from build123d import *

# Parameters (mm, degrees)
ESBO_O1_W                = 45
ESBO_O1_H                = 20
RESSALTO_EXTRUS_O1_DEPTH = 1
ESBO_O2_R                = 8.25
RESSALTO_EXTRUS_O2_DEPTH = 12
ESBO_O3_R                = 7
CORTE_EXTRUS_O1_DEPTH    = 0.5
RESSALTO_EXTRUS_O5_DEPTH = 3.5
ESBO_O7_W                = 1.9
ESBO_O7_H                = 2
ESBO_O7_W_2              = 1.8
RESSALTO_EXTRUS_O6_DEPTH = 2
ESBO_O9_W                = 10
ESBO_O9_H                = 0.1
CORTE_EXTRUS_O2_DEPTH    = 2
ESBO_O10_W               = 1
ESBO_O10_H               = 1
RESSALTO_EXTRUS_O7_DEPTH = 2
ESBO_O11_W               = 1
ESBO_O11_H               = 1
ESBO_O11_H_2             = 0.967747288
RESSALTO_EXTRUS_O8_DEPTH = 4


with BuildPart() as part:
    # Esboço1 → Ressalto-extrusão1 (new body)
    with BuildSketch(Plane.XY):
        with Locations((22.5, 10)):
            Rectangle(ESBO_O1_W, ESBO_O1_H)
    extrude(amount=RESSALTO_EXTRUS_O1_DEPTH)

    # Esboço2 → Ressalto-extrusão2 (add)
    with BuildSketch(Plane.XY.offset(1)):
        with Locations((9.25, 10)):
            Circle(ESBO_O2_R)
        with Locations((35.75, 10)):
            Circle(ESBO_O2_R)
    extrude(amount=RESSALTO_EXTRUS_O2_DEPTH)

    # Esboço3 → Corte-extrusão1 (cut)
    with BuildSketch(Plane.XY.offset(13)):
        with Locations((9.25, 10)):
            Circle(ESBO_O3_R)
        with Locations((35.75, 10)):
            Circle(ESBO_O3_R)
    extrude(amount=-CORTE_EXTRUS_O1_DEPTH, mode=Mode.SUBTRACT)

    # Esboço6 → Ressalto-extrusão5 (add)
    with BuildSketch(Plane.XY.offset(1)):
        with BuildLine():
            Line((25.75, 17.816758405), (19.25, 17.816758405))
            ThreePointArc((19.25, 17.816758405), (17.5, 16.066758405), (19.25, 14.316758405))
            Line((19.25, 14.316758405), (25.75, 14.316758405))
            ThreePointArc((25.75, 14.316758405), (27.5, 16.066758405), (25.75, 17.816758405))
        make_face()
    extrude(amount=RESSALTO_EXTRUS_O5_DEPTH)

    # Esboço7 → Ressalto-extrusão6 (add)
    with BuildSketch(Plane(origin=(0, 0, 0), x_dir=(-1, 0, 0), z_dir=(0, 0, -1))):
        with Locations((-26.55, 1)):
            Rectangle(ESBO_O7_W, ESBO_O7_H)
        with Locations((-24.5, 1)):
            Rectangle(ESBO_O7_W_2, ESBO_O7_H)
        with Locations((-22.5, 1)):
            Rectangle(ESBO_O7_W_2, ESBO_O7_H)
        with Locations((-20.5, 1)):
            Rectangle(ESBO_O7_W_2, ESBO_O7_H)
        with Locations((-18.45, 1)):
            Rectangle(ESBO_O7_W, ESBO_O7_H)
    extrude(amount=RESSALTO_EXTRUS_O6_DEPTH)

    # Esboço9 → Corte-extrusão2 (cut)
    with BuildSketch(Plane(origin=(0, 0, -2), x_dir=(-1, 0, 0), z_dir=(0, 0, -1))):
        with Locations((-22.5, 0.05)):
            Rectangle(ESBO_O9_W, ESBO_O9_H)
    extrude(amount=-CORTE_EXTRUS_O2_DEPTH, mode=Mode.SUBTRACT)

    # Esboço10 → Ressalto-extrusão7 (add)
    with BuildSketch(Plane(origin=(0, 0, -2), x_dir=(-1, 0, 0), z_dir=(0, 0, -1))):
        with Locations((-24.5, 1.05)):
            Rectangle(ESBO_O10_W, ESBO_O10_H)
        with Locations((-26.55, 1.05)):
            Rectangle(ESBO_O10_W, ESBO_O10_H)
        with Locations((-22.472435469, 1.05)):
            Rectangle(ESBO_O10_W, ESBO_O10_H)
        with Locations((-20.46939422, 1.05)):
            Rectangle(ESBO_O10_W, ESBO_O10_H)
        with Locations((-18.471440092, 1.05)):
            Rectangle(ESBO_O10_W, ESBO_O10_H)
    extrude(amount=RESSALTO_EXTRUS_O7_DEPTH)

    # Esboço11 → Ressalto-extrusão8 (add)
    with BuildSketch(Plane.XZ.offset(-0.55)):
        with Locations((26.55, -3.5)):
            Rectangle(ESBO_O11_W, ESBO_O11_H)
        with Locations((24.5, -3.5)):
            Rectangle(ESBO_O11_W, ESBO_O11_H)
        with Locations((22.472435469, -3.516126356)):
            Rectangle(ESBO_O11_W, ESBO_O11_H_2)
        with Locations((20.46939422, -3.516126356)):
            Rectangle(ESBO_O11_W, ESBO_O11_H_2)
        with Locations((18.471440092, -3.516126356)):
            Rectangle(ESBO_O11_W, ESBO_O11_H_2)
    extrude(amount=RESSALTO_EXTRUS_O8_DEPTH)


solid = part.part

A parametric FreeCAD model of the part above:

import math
import FreeCAD as App
import Part
import Sketcher
from FreeCAD import Vector
Q = App.Units.Quantity

doc = App.newDocument("Part")
params = doc.addObject("Spreadsheet::Sheet", "Params")
for row, (alias, value) in enumerate([
    ("sketch1_width", "45 mm"),
    ("sketch1_height", "20 mm"),
    ("pad1_length", "1 mm"),
    ("sketch2_diameter", "16.5 mm"),
    ("pad2_length", "12 mm"),
    ("sketch3_diameter", "14 mm"),
    ("pocket1_length", "0.5 mm"),
    ("sketch4_radius", "1.75 mm"),
    ("sketch4_width", "6.5 mm"),
    ("pad3_length", "3.5 mm"),
    ("sketch5_height", "2 mm"),
    ("sketch5_width", "1.9 mm"),
    ("sketch5_width2", "1.8 mm"),
    ("pad4_length", "2 mm"),
    ("sketch6_width", "10 mm"),
    ("sketch6_height", "0.1 mm"),
    ("pocket2_length", "2 mm"),
    ("sketch7_width", "1 mm"),
    ("pad5_length", "2 mm"),
    ("sketch8_width", "1 mm"),
    ("pad6_length", "4 mm"),
], start=1):
    params.set(f"A{row}", alias)
    params.set(f"B{row}", "=" + value)
    params.setAlias(f"B{row}", alias)

body = doc.addObject("PartDesign::Body", "Body")

# Sketch on XY plane
sketch1 = body.newObject("Sketcher::SketchObject", "Sketch")
sketch1.AttachmentSupport = (doc.getObject("XY_Plane"), [""])
sketch1.MapMode = "FlatFace"
sketch1.addGeometry(Part.LineSegment(Vector(0, 20, 0), Vector(0, 0, 0)), False)
sketch1.addGeometry(Part.LineSegment(Vector(0, 0, 0), Vector(45, 0, 0)), False)
sketch1.addGeometry(Part.LineSegment(Vector(45, 0, 0), Vector(45, 20, 0)), False)
sketch1.addGeometry(Part.LineSegment(Vector(45, 20, 0), Vector(0, 20, 0)), False)
sketch1.addConstraint(Sketcher.Constraint("Coincident", 0, 2, 1, 1))
sketch1.addConstraint(Sketcher.Constraint("Coincident", 1, 2, 2, 1))
sketch1.addConstraint(Sketcher.Constraint("Coincident", 2, 2, 3, 1))
sketch1.addConstraint(Sketcher.Constraint("Coincident", 3, 2, 0, 1))
sketch1.addConstraint(Sketcher.Constraint("Vertical", 0))
sketch1.addConstraint(Sketcher.Constraint("Horizontal", 1))
sketch1.addConstraint(Sketcher.Constraint("Vertical", 2))
sketch1.addConstraint(Sketcher.Constraint("Horizontal", 3))
sketch1.addConstraint(Sketcher.Constraint("Coincident", 0, 2, -1, 1))
sketch1.addConstraint(Sketcher.Constraint("DistanceX", 1, 1, 1, 2, Q("45 mm")))
sketch1.addConstraint(Sketcher.Constraint("DistanceY", 0, 2, 0, 1, Q("20 mm")))
sketch1.setExpression("Constraints[9]", "Params.sketch1_width")
sketch1.setExpression("Constraints[10]", "Params.sketch1_height")
pad1 = body.newObject("PartDesign::Pad", "Pad")
pad1.Profile = sketch1
pad1.setExpression("Length", "Params.pad1_length")

# Sketch on XY plane
sketch2 = body.newObject("Sketcher::SketchObject", "Sketch001")
sketch2.AttachmentSupport = (doc.getObject("XY_Plane"), [""])
sketch2.MapMode = "FlatFace"
sketch2.AttachmentOffset = App.Placement(Vector(0, 0, 1), App.Rotation())
sketch2.addGeometry(Part.Circle(Vector(9, 10, 0), Vector(0, 0, 1), 8), False)
sketch2.addGeometry(Part.Circle(Vector(36, 10, 0), Vector(0, 0, 1), 8), False)
sketch2.addConstraint(Sketcher.Constraint("Equal", 0, 1))
sketch2.addConstraint(Sketcher.Constraint("Horizontal", 0, 3, 1, 3))
sketch2.addConstraint(Sketcher.Constraint("Diameter", 0, Q("16.5 mm")))
sketch2.addConstraint(Sketcher.Constraint("DistanceY", -1, 1, 0, 3, Q("10 mm")))
sketch2.addConstraint(Sketcher.Constraint("DistanceX", 0, 3, 1, 3, Q("26.5 mm")))
sketch2.addConstraint(Sketcher.Constraint("DistanceX", -1, 1, 0, 3, Q("9.25 mm")))
sketch2.setExpression("Constraints[2]", "Params.sketch2_diameter")
pad2 = body.newObject("PartDesign::Pad", "Pad001")
pad2.Profile = sketch2
pad2.setExpression("Length", "Params.pad2_length")

# Sketch on XY plane
sketch3 = body.newObject("Sketcher::SketchObject", "Sketch002")
sketch3.AttachmentSupport = (doc.getObject("XY_Plane"), [""])
sketch3.MapMode = "FlatFace"
sketch3.AttachmentOffset = App.Placement(Vector(0, 0, 13), App.Rotation())
sketch3.addGeometry(Part.Circle(Vector(9, 10, 0), Vector(0, 0, 1), 7), False)
sketch3.addGeometry(Part.Circle(Vector(36, 10, 0), Vector(0, 0, 1), 7), False)
sketch3.addConstraint(Sketcher.Constraint("Equal", 0, 1))
sketch3.addConstraint(Sketcher.Constraint("Horizontal", 0, 3, 1, 3))
sketch3.addConstraint(Sketcher.Constraint("Diameter", 0, Q("14 mm")))
sketch3.addConstraint(Sketcher.Constraint("DistanceY", -1, 1, 0, 3, Q("10 mm")))
sketch3.addConstraint(Sketcher.Constraint("DistanceX", 0, 3, 1, 3, Q("26.5 mm")))
sketch3.addConstraint(Sketcher.Constraint("DistanceX", -1, 1, 0, 3, Q("9.25 mm")))
sketch3.setExpression("Constraints[2]", "Params.sketch3_diameter")
pocket1 = body.newObject("PartDesign::Pocket", "Pocket")
pocket1.Profile = sketch3
pocket1.setExpression("Length", "Params.pocket1_length")

# Sketch on XY plane
sketch4 = body.newObject("Sketcher::SketchObject", "Sketch003")
sketch4.AttachmentSupport = (doc.getObject("XY_Plane"), [""])
sketch4.MapMode = "FlatFace"
sketch4.AttachmentOffset = App.Placement(Vector(0, 0, 1), App.Rotation())
sketch4.addGeometry(Part.LineSegment(Vector(25.8, 17.8, 0), Vector(19.2, 17.8, 0)), False)
sketch4.addGeometry(Part.ArcOfCircle(Part.Circle(Vector(19.2, 16.1, 0), Vector(0, 0, 1), 1.8), math.radians(90), math.radians(270)), False)
sketch4.addGeometry(Part.LineSegment(Vector(19.2, 14.3, 0), Vector(25.8, 14.3, 0)), False)
sketch4.addGeometry(Part.ArcOfCircle(Part.Circle(Vector(25.8, 16.1, 0), Vector(0, 0, 1), 1.8), math.radians(-90), math.radians(90)), False)
sketch4.addConstraint(Sketcher.Constraint("Tangent", 0, 2, 1, 1))
sketch4.addConstraint(Sketcher.Constraint("Tangent", 1, 2, 2, 1))
sketch4.addConstraint(Sketcher.Constraint("Tangent", 2, 2, 3, 1))
sketch4.addConstraint(Sketcher.Constraint("Tangent", 3, 2, 0, 1))
sketch4.addConstraint(Sketcher.Constraint("Horizontal", 0))
sketch4.addConstraint(Sketcher.Constraint("Horizontal", 2))
sketch4.addConstraint(Sketcher.Constraint("Radius", 1, Q("1.75 mm")))
sketch4.addConstraint(Sketcher.Constraint("DistanceX", 0, 2, 0, 1, Q("6.5 mm")))
sketch4.addConstraint(Sketcher.Constraint("DistanceX", -1, 1, 1, 3, Q("19.25 mm")))
sketch4.addConstraint(Sketcher.Constraint("DistanceY", -1, 1, 1, 3, Q("16.066758 mm")))
sketch4.setExpression("Constraints[6]", "Params.sketch4_radius")
sketch4.setExpression("Constraints[7]", "Params.sketch4_width")
pad3 = body.newObject("PartDesign::Pad", "Pad002")
pad3.Profile = sketch4
pad3.setExpression("Length", "Params.pad3_length")

# Sketch on XY plane
sketch5 = body.newObject("Sketcher::SketchObject", "Sketch004")
sketch5.AttachmentSupport = (doc.getObject("XY_Plane"), [""])
sketch5.MapMode = "FlatFace"
sketch5.addGeometry(Part.LineSegment(Vector(27.5, 2, 0), Vector(27.5, 0, 0)), False)
sketch5.addGeometry(Part.LineSegment(Vector(27.5, 0, 0), Vector(25.6, 0, 0)), False)
sketch5.addGeometry(Part.LineSegment(Vector(25.6, 0, 0), Vector(25.6, 2, 0)), False)
sketch5.addGeometry(Part.LineSegment(Vector(25.6, 2, 0), Vector(27.5, 2, 0)), False)
sketch5.addGeometry(Part.LineSegment(Vector(25.4, 2, 0), Vector(25.4, 0, 0)), False)
sketch5.addGeometry(Part.LineSegment(Vector(25.4, 0, 0), Vector(23.6, 0, 0)), False)
sketch5.addGeometry(Part.LineSegment(Vector(23.6, 0, 0), Vector(23.6, 2, 0)), False)
sketch5.addGeometry(Part.LineSegment(Vector(23.6, 2, 0), Vector(25.4, 2, 0)), False)
sketch5.addGeometry(Part.LineSegment(Vector(23.4, 2, 0), Vector(23.4, 0, 0)), False)
sketch5.addGeometry(Part.LineSegment(Vector(23.4, 0, 0), Vector(21.6, 0, 0)), False)
sketch5.addGeometry(Part.LineSegment(Vector(21.6, 0, 0), Vector(21.6, 2, 0)), False)
sketch5.addGeometry(Part.LineSegment(Vector(21.6, 2, 0), Vector(23.4, 2, 0)), False)
sketch5.addGeometry(Part.LineSegment(Vector(21.4, 2, 0), Vector(21.4, 0, 0)), False)
sketch5.addGeometry(Part.LineSegment(Vector(21.4, 0, 0), Vector(19.6, 0, 0)), False)
sketch5.addGeometry(Part.LineSegment(Vector(19.6, 0, 0), Vector(19.6, 2, 0)), False)
sketch5.addGeometry(Part.LineSegment(Vector(19.6, 2, 0), Vector(21.4, 2, 0)), False)
sketch5.addGeometry(Part.LineSegment(Vector(19.4, 2, 0), Vector(19.4, 0, 0)), False)
sketch5.addGeometry(Part.LineSegment(Vector(19.4, 0, 0), Vector(17.5, 0, 0)), False)
sketch5.addGeometry(Part.LineSegment(Vector(17.5, 0, 0), Vector(17.5, 2, 0)), False)
sketch5.addGeometry(Part.LineSegment(Vector(17.5, 2, 0), Vector(19.4, 2, 0)), False)
sketch5.addConstraint(Sketcher.Constraint("Coincident", 0, 2, 1, 1))
sketch5.addConstraint(Sketcher.Constraint("Coincident", 1, 2, 2, 1))
sketch5.addConstraint(Sketcher.Constraint("Coincident", 2, 2, 3, 1))
sketch5.addConstraint(Sketcher.Constraint("Coincident", 3, 2, 0, 1))
sketch5.addConstraint(Sketcher.Constraint("Coincident", 4, 2, 5, 1))
sketch5.addConstraint(Sketcher.Constraint("Coincident", 5, 2, 6, 1))
sketch5.addConstraint(Sketcher.Constraint("Coincident", 6, 2, 7, 1))
sketch5.addConstraint(Sketcher.Constraint("Coincident", 7, 2, 4, 1))
sketch5.addConstraint(Sketcher.Constraint("Coincident", 8, 2, 9, 1))
sketch5.addConstraint(Sketcher.Constraint("Coincident", 9, 2, 10, 1))
sketch5.addConstraint(Sketcher.Constraint("Coincident", 10, 2, 11, 1))
sketch5.addConstraint(Sketcher.Constraint("Coincident", 11, 2, 8, 1))
sketch5.addConstraint(Sketcher.Constraint("Coincident", 12, 2, 13, 1))
sketch5.addConstraint(Sketcher.Constraint("Coincident", 13, 2, 14, 1))
sketch5.addConstraint(Sketcher.Constraint("Coincident", 14, 2, 15, 1))
sketch5.addConstraint(Sketcher.Constraint("Coincident", 15, 2, 12, 1))
sketch5.addConstraint(Sketcher.Constraint("Coincident", 16, 2, 17, 1))
sketch5.addConstraint(Sketcher.Constraint("Coincident", 17, 2, 18, 1))
sketch5.addConstraint(Sketcher.Constraint("Coincident", 18, 2, 19, 1))
sketch5.addConstraint(Sketcher.Constraint("Coincident", 19, 2, 16, 1))
sketch5.addConstraint(Sketcher.Constraint("Vertical", 0))
sketch5.addConstraint(Sketcher.Constraint("Horizontal", 1))
sketch5.addConstraint(Sketcher.Constraint("Vertical", 2))
sketch5.addConstraint(Sketcher.Constraint("Horizontal", 3))
sketch5.addConstraint(Sketcher.Constraint("Vertical", 4))
sketch5.addConstraint(Sketcher.Constraint("Horizontal", 5))
sketch5.addConstraint(Sketcher.Constraint("Vertical", 6))
sketch5.addConstraint(Sketcher.Constraint("Horizontal", 7))
sketch5.addConstraint(Sketcher.Constraint("Vertical", 8))
sketch5.addConstraint(Sketcher.Constraint("Horizontal", 9))
sketch5.addConstraint(Sketcher.Constraint("Vertical", 10))
sketch5.addConstraint(Sketcher.Constraint("Horizontal", 11))
sketch5.addConstraint(Sketcher.Constraint("Vertical", 12))
sketch5.addConstraint(Sketcher.Constraint("Horizontal", 13))
sketch5.addConstraint(Sketcher.Constraint("Vertical", 14))
sketch5.addConstraint(Sketcher.Constraint("Horizontal", 15))
sketch5.addConstraint(Sketcher.Constraint("Vertical", 16))
sketch5.addConstraint(Sketcher.Constraint("Horizontal", 17))
sketch5.addConstraint(Sketcher.Constraint("Vertical", 18))
sketch5.addConstraint(Sketcher.Constraint("Horizontal", 19))
sketch5.addConstraint(Sketcher.Constraint("PointOnObject", 0, 2, -1))
sketch5.addConstraint(Sketcher.Constraint("PointOnObject", 4, 2, -1))
sketch5.addConstraint(Sketcher.Constraint("PointOnObject", 8, 2, -1))
sketch5.addConstraint(Sketcher.Constraint("PointOnObject", 12, 2, -1))
sketch5.addConstraint(Sketcher.Constraint("PointOnObject", 16, 2, -1))
sketch5.addConstraint(Sketcher.Constraint("Horizontal", 3, 2, 6, 2))
sketch5.addConstraint(Sketcher.Constraint("Horizontal", 7, 2, 10, 2))
sketch5.addConstraint(Sketcher.Constraint("Horizontal", 11, 2, 14, 2))
sketch5.addConstraint(Sketcher.Constraint("Horizontal", 15, 2, 18, 2))
sketch5.addConstraint(Sketcher.Constraint("Equal", 7, 9))
sketch5.addConstraint(Sketcher.Constraint("Equal", 11, 13))
sketch5.addConstraint(Sketcher.Constraint("Equal", 3, 17))
sketch5.addConstraint(Sketcher.Constraint("DistanceY", 0, 2, 0, 1, Q("2 mm")))
sketch5.addConstraint(Sketcher.Constraint("DistanceX", 1, 2, 1, 1, Q("1.9 mm")))
sketch5.addConstraint(Sketcher.Constraint("DistanceX", 5, 2, 5, 1, Q("1.8 mm")))
sketch5.addConstraint(Sketcher.Constraint("DistanceX", 5, 2, 1, 2, Q("2 mm")))
sketch5.addConstraint(Sketcher.Constraint("DistanceX", 8, 2, 4, 2, Q("2 mm")))
sketch5.addConstraint(Sketcher.Constraint("DistanceX", 12, 2, 8, 2, Q("2 mm")))
sketch5.addConstraint(Sketcher.Constraint("DistanceX", 16, 2, 12, 2, Q("2 mm")))
sketch5.addConstraint(Sketcher.Constraint("DistanceX", -1, 1, 0, 2, Q("27.5 mm")))
sketch5.setExpression("Constraints[52]", "Params.sketch5_height")
sketch5.setExpression("Constraints[53]", "Params.sketch5_width")
sketch5.setExpression("Constraints[54]", "Params.sketch5_width2")
pad4 = body.newObject("PartDesign::Pad", "Pad003")
pad4.Profile = sketch5
pad4.setExpression("Length", "Params.pad4_length")
pad4.Reversed = True

# Sketch on XY plane
sketch6 = body.newObject("Sketcher::SketchObject", "Sketch005")
sketch6.AttachmentSupport = (doc.getObject("XY_Plane"), [""])
sketch6.MapMode = "FlatFace"
sketch6.AttachmentOffset = App.Placement(Vector(0, 0, -2), App.Rotation())
sketch6.addGeometry(Part.LineSegment(Vector(27.5, 0.1, 0), Vector(27.5, 0, 0)), False)
sketch6.addGeometry(Part.LineSegment(Vector(27.5, 0, 0), Vector(17.5, 0, 0)), False)
sketch6.addGeometry(Part.LineSegment(Vector(17.5, 0, 0), Vector(17.5, 0.1, 0)), False)
sketch6.addGeometry(Part.LineSegment(Vector(17.5, 0.1, 0), Vector(27.5, 0.1, 0)), False)
sketch6.addConstraint(Sketcher.Constraint("Coincident", 0, 2, 1, 1))
sketch6.addConstraint(Sketcher.Constraint("Coincident", 1, 2, 2, 1))
sketch6.addConstraint(Sketcher.Constraint("Coincident", 2, 2, 3, 1))
sketch6.addConstraint(Sketcher.Constraint("Coincident", 3, 2, 0, 1))
sketch6.addConstraint(Sketcher.Constraint("Vertical", 0))
sketch6.addConstraint(Sketcher.Constraint("Horizontal", 1))
sketch6.addConstraint(Sketcher.Constraint("Vertical", 2))
sketch6.addConstraint(Sketcher.Constraint("Horizontal", 3))
sketch6.addConstraint(Sketcher.Constraint("PointOnObject", 0, 2, -1))
sketch6.addConstraint(Sketcher.Constraint("DistanceX", 1, 2, 1, 1, Q("10 mm")))
sketch6.addConstraint(Sketcher.Constraint("DistanceY", 0, 2, 0, 1, Q("0.1 mm")))
sketch6.addConstraint(Sketcher.Constraint("DistanceX", -1, 1, 0, 2, Q("27.5 mm")))
sketch6.setExpression("Constraints[9]", "Params.sketch6_width")
sketch6.setExpression("Constraints[10]", "Params.sketch6_height")
pocket2 = body.newObject("PartDesign::Pocket", "Pocket001")
pocket2.Profile = sketch6
pocket2.setExpression("Length", "Params.pocket2_length")
pocket2.Reversed = True

# Sketch on XY plane
sketch7 = body.newObject("Sketcher::SketchObject", "Sketch006")
sketch7.AttachmentSupport = (doc.getObject("XY_Plane"), [""])
sketch7.MapMode = "FlatFace"
sketch7.AttachmentOffset = App.Placement(Vector(0, 0, -2), App.Rotation())
sketch7.addGeometry(Part.LineSegment(Vector(25, 1.6, 0), Vector(25, 0.6, 0)), False)
sketch7.addGeometry(Part.LineSegment(Vector(25, 0.6, 0), Vector(24, 0.6, 0)), False)
sketch7.addGeometry(Part.LineSegment(Vector(24, 0.6, 0), Vector(24, 1.6, 0)), False)
sketch7.addGeometry(Part.LineSegment(Vector(24, 1.6, 0), Vector(25, 1.6, 0)), False)
sketch7.addGeometry(Part.LineSegment(Vector(27.1, 1.6, 0), Vector(27.1, 0.6, 0)), False)
sketch7.addGeometry(Part.LineSegment(Vector(27.1, 0.6, 0), Vector(26.1, 0.6, 0)), False)
sketch7.addGeometry(Part.LineSegment(Vector(26.1, 0.6, 0), Vector(26.1, 1.6, 0)), False)
sketch7.addGeometry(Part.LineSegment(Vector(26.1, 1.6, 0), Vector(27.1, 1.6, 0)), False)
sketch7.addGeometry(Part.LineSegment(Vector(23, 1.6, 0), Vector(23, 0.6, 0)), False)
sketch7.addGeometry(Part.LineSegment(Vector(23, 0.6, 0), Vector(22, 0.6, 0)), False)
sketch7.addGeometry(Part.LineSegment(Vector(22, 0.6, 0), Vector(22, 1.6, 0)), False)
sketch7.addGeometry(Part.LineSegment(Vector(22, 1.6, 0), Vector(23, 1.6, 0)), False)
sketch7.addGeometry(Part.LineSegment(Vector(21, 1.6, 0), Vector(21, 0.6, 0)), False)
sketch7.addGeometry(Part.LineSegment(Vector(21, 0.6, 0), Vector(20, 0.6, 0)), False)
sketch7.addGeometry(Part.LineSegment(Vector(20, 0.6, 0), Vector(20, 1.6, 0)), False)
sketch7.addGeometry(Part.LineSegment(Vector(20, 1.6, 0), Vector(21, 1.6, 0)), False)
sketch7.addGeometry(Part.LineSegment(Vector(19, 1.6, 0), Vector(19, 0.6, 0)), False)
sketch7.addGeometry(Part.LineSegment(Vector(19, 0.6, 0), Vector(18, 0.6, 0)), False)
sketch7.addGeometry(Part.LineSegment(Vector(18, 0.6, 0), Vector(18, 1.6, 0)), False)
sketch7.addGeometry(Part.LineSegment(Vector(18, 1.6, 0), Vector(19, 1.6, 0)), False)
sketch7.addConstraint(Sketcher.Constraint("Coincident", 0, 2, 1, 1))
sketch7.addConstraint(Sketcher.Constraint("Coincident", 1, 2, 2, 1))
sketch7.addConstraint(Sketcher.Constraint("Coincident", 2, 2, 3, 1))
sketch7.addConstraint(Sketcher.Constraint("Coincident", 3, 2, 0, 1))
sketch7.addConstraint(Sketcher.Constraint("Coincident", 4, 2, 5, 1))
sketch7.addConstraint(Sketcher.Constraint("Coincident", 5, 2, 6, 1))
sketch7.addConstraint(Sketcher.Constraint("Coincident", 6, 2, 7, 1))
sketch7.addConstraint(Sketcher.Constraint("Coincident", 7, 2, 4, 1))
sketch7.addConstraint(Sketcher.Constraint("Coincident", 8, 2, 9, 1))
sketch7.addConstraint(Sketcher.Constraint("Coincident", 9, 2, 10, 1))
sketch7.addConstraint(Sketcher.Constraint("Coincident", 10, 2, 11, 1))
sketch7.addConstraint(Sketcher.Constraint("Coincident", 11, 2, 8, 1))
sketch7.addConstraint(Sketcher.Constraint("Coincident", 12, 2, 13, 1))
sketch7.addConstraint(Sketcher.Constraint("Coincident", 13, 2, 14, 1))
sketch7.addConstraint(Sketcher.Constraint("Coincident", 14, 2, 15, 1))
sketch7.addConstraint(Sketcher.Constraint("Coincident", 15, 2, 12, 1))
sketch7.addConstraint(Sketcher.Constraint("Coincident", 16, 2, 17, 1))
sketch7.addConstraint(Sketcher.Constraint("Coincident", 17, 2, 18, 1))
sketch7.addConstraint(Sketcher.Constraint("Coincident", 18, 2, 19, 1))
sketch7.addConstraint(Sketcher.Constraint("Coincident", 19, 2, 16, 1))
sketch7.addConstraint(Sketcher.Constraint("Vertical", 0))
sketch7.addConstraint(Sketcher.Constraint("Horizontal", 1))
sketch7.addConstraint(Sketcher.Constraint("Vertical", 2))
sketch7.addConstraint(Sketcher.Constraint("Horizontal", 3))
sketch7.addConstraint(Sketcher.Constraint("Vertical", 4))
sketch7.addConstraint(Sketcher.Constraint("Horizontal", 5))
sketch7.addConstraint(Sketcher.Constraint("Vertical", 6))
sketch7.addConstraint(Sketcher.Constraint("Horizontal", 7))
sketch7.addConstraint(Sketcher.Constraint("Vertical", 8))
sketch7.addConstraint(Sketcher.Constraint("Horizontal", 9))
sketch7.addConstraint(Sketcher.Constraint("Vertical", 10))
sketch7.addConstraint(Sketcher.Constraint("Horizontal", 11))
sketch7.addConstraint(Sketcher.Constraint("Vertical", 12))
sketch7.addConstraint(Sketcher.Constraint("Horizontal", 13))
sketch7.addConstraint(Sketcher.Constraint("Vertical", 14))
sketch7.addConstraint(Sketcher.Constraint("Horizontal", 15))
sketch7.addConstraint(Sketcher.Constraint("Vertical", 16))
sketch7.addConstraint(Sketcher.Constraint("Horizontal", 17))
sketch7.addConstraint(Sketcher.Constraint("Vertical", 18))
sketch7.addConstraint(Sketcher.Constraint("Horizontal", 19))
sketch7.addConstraint(Sketcher.Constraint("Horizontal", 1, 2, 4, 2))
sketch7.addConstraint(Sketcher.Constraint("Horizontal", 3, 2, 6, 2))
sketch7.addConstraint(Sketcher.Constraint("Horizontal", 5, 2, 8, 2))
sketch7.addConstraint(Sketcher.Constraint("Horizontal", 7, 2, 10, 2))
sketch7.addConstraint(Sketcher.Constraint("Horizontal", 9, 2, 12, 2))
sketch7.addConstraint(Sketcher.Constraint("Horizontal", 11, 2, 14, 2))
sketch7.addConstraint(Sketcher.Constraint("Horizontal", 13, 2, 16, 2))
sketch7.addConstraint(Sketcher.Constraint("Horizontal", 15, 2, 18, 2))
sketch7.addConstraint(Sketcher.Constraint("Equal", 3, 5))
sketch7.addConstraint(Sketcher.Constraint("Equal", 7, 9))
sketch7.addConstraint(Sketcher.Constraint("Equal", 11, 13))
sketch7.addConstraint(Sketcher.Constraint("Equal", 15, 17))
sketch7.addConstraint(Sketcher.Constraint("Equal", 19, 0))
sketch7.addConstraint(Sketcher.Constraint("DistanceX", 1, 2, 1, 1, Q("1 mm")))
sketch7.addConstraint(Sketcher.Constraint("DistanceX", -1, 1, 0, 2, Q("25 mm")))
sketch7.addConstraint(Sketcher.Constraint("DistanceY", -1, 1, 0, 2, Q("0.55 mm")))
sketch7.addConstraint(Sketcher.Constraint("DistanceX", -1, 1, 4, 2, Q("27.05 mm")))
sketch7.addConstraint(Sketcher.Constraint("DistanceX", -1, 1, 16, 2, Q("18.97144 mm")))
sketch7.addConstraint(Sketcher.Constraint("DistanceX", 12, 2, 9, 2, Q("1.003041 mm")))
sketch7.addConstraint(Sketcher.Constraint("DistanceX", -1, 1, 8, 2, Q("22.972435 mm")))
sketch7.setExpression("Constraints[53]", "Params.sketch7_width")
pad5 = body.newObject("PartDesign::Pad", "Pad004")
pad5.Profile = sketch7
pad5.setExpression("Length", "Params.pad5_length")
pad5.Reversed = True

# Sketch on XZ plane
sketch8 = body.newObject("Sketcher::SketchObject", "Sketch007")
sketch8.AttachmentSupport = (doc.getObject("XZ_Plane"), [""])
sketch8.MapMode = "FlatFace"
sketch8.AttachmentOffset = App.Placement(Vector(0, 0, -0.55), App.Rotation())
sketch8.addGeometry(Part.LineSegment(Vector(26.1, -3, 0), Vector(26.1, -4, 0)), False)
sketch8.addGeometry(Part.LineSegment(Vector(26.1, -4, 0), Vector(27.1, -4, 0)), False)
sketch8.addGeometry(Part.LineSegment(Vector(27.1, -4, 0), Vector(27.1, -3, 0)), False)
sketch8.addGeometry(Part.LineSegment(Vector(27.1, -3, 0), Vector(26.1, -3, 0)), False)
sketch8.addGeometry(Part.LineSegment(Vector(24, -3, 0), Vector(24, -4, 0)), False)
sketch8.addGeometry(Part.LineSegment(Vector(24, -4, 0), Vector(25, -4, 0)), False)
sketch8.addGeometry(Part.LineSegment(Vector(25, -4, 0), Vector(25, -3, 0)), False)
sketch8.addGeometry(Part.LineSegment(Vector(25, -3, 0), Vector(24, -3, 0)), False)
sketch8.addGeometry(Part.LineSegment(Vector(22, -3, 0), Vector(22, -4, 0)), False)
sketch8.addGeometry(Part.LineSegment(Vector(22, -4, 0), Vector(23, -4, 0)), False)
sketch8.addGeometry(Part.LineSegment(Vector(23, -4, 0), Vector(23, -3, 0)), False)
sketch8.addGeometry(Part.LineSegment(Vector(23, -3, 0), Vector(22, -3, 0)), False)
sketch8.addGeometry(Part.LineSegment(Vector(20, -3, 0), Vector(20, -4, 0)), False)
sketch8.addGeometry(Part.LineSegment(Vector(20, -4, 0), Vector(21, -4, 0)), False)
sketch8.addGeometry(Part.LineSegment(Vector(21, -4, 0), Vector(21, -3, 0)), False)
sketch8.addGeometry(Part.LineSegment(Vector(21, -3, 0), Vector(20, -3, 0)), False)
sketch8.addGeometry(Part.LineSegment(Vector(18, -3, 0), Vector(18, -4, 0)), False)
sketch8.addGeometry(Part.LineSegment(Vector(18, -4, 0), Vector(19, -4, 0)), False)
sketch8.addGeometry(Part.LineSegment(Vector(19, -4, 0), Vector(19, -3, 0)), False)
sketch8.addGeometry(Part.LineSegment(Vector(19, -3, 0), Vector(18, -3, 0)), False)
sketch8.addConstraint(Sketcher.Constraint("Coincident", 0, 2, 1, 1))
sketch8.addConstraint(Sketcher.Constraint("Coincident", 1, 2, 2, 1))
sketch8.addConstraint(Sketcher.Constraint("Coincident", 2, 2, 3, 1))
sketch8.addConstraint(Sketcher.Constraint("Coincident", 3, 2, 0, 1))
sketch8.addConstraint(Sketcher.Constraint("Coincident", 4, 2, 5, 1))
sketch8.addConstraint(Sketcher.Constraint("Coincident", 5, 2, 6, 1))
sketch8.addConstraint(Sketcher.Constraint("Coincident", 6, 2, 7, 1))
sketch8.addConstraint(Sketcher.Constraint("Coincident", 7, 2, 4, 1))
sketch8.addConstraint(Sketcher.Constraint("Coincident", 8, 2, 9, 1))
sketch8.addConstraint(Sketcher.Constraint("Coincident", 9, 2, 10, 1))
sketch8.addConstraint(Sketcher.Constraint("Coincident", 10, 2, 11, 1))
sketch8.addConstraint(Sketcher.Constraint("Coincident", 11, 2, 8, 1))
sketch8.addConstraint(Sketcher.Constraint("Coincident", 12, 2, 13, 1))
sketch8.addConstraint(Sketcher.Constraint("Coincident", 13, 2, 14, 1))
sketch8.addConstraint(Sketcher.Constraint("Coincident", 14, 2, 15, 1))
sketch8.addConstraint(Sketcher.Constraint("Coincident", 15, 2, 12, 1))
sketch8.addConstraint(Sketcher.Constraint("Coincident", 16, 2, 17, 1))
sketch8.addConstraint(Sketcher.Constraint("Coincident", 17, 2, 18, 1))
sketch8.addConstraint(Sketcher.Constraint("Coincident", 18, 2, 19, 1))
sketch8.addConstraint(Sketcher.Constraint("Coincident", 19, 2, 16, 1))
sketch8.addConstraint(Sketcher.Constraint("Vertical", 0))
sketch8.addConstraint(Sketcher.Constraint("Horizontal", 1))
sketch8.addConstraint(Sketcher.Constraint("Vertical", 2))
sketch8.addConstraint(Sketcher.Constraint("Horizontal", 3))
sketch8.addConstraint(Sketcher.Constraint("Vertical", 4))
sketch8.addConstraint(Sketcher.Constraint("Horizontal", 5))
sketch8.addConstraint(Sketcher.Constraint("Vertical", 6))
sketch8.addConstraint(Sketcher.Constraint("Horizontal", 7))
sketch8.addConstraint(Sketcher.Constraint("Vertical", 8))
sketch8.addConstraint(Sketcher.Constraint("Horizontal", 9))
sketch8.addConstraint(Sketcher.Constraint("Vertical", 10))
sketch8.addConstraint(Sketcher.Constraint("Horizontal", 11))
sketch8.addConstraint(Sketcher.Constraint("Vertical", 12))
sketch8.addConstraint(Sketcher.Constraint("Horizontal", 13))
sketch8.addConstraint(Sketcher.Constraint("Vertical", 14))
sketch8.addConstraint(Sketcher.Constraint("Horizontal", 15))
sketch8.addConstraint(Sketcher.Constraint("Vertical", 16))
sketch8.addConstraint(Sketcher.Constraint("Horizontal", 17))
sketch8.addConstraint(Sketcher.Constraint("Vertical", 18))
sketch8.addConstraint(Sketcher.Constraint("Horizontal", 19))
sketch8.addConstraint(Sketcher.Constraint("Horizontal", 1, 2, 4, 2))
sketch8.addConstraint(Sketcher.Constraint("Horizontal", 3, 2, 6, 2))
sketch8.addConstraint(Sketcher.Constraint("Horizontal", 5, 2, 8, 2))
sketch8.addConstraint(Sketcher.Constraint("Horizontal", 9, 2, 12, 2))
sketch8.addConstraint(Sketcher.Constraint("Horizontal", 11, 2, 14, 2))
sketch8.addConstraint(Sketcher.Constraint("Horizontal", 13, 2, 16, 2))
sketch8.addConstraint(Sketcher.Constraint("Horizontal", 15, 2, 18, 2))
sketch8.addConstraint(Sketcher.Constraint("Equal", 3, 5))
sketch8.addConstraint(Sketcher.Constraint("Equal", 7, 9))
sketch8.addConstraint(Sketcher.Constraint("Equal", 11, 13))
sketch8.addConstraint(Sketcher.Constraint("Equal", 15, 17))
sketch8.addConstraint(Sketcher.Constraint("Equal", 19, 0))
sketch8.addConstraint(Sketcher.Constraint("DistanceX", 1, 1, 1, 2, Q("1 mm")))
sketch8.addConstraint(Sketcher.Constraint("DistanceY", 0, 2, -1, 1, Q("4 mm")))
sketch8.addConstraint(Sketcher.Constraint("DistanceX", -1, 1, 4, 2, Q("24 mm")))
sketch8.addConstraint(Sketcher.Constraint("DistanceX", -1, 1, 0, 2, Q("26.05 mm")))
sketch8.addConstraint(Sketcher.Constraint("DistanceY", 8, 2, 8, 1, Q("0.967747 mm")))
sketch8.addConstraint(Sketcher.Constraint("DistanceX", -1, 1, 16, 2, Q("17.97144 mm")))
sketch8.addConstraint(Sketcher.Constraint("DistanceX", 12, 2, 8, 2, Q("2.003041 mm")))
sketch8.addConstraint(Sketcher.Constraint("DistanceX", -1, 1, 8, 2, Q("21.972435 mm")))
sketch8.setExpression("Constraints[52]", "Params.sketch8_width")
pad6 = body.newObject("PartDesign::Pad", "Pad005")
pad6.Profile = sketch8
pad6.setExpression("Length", "Params.pad6_length")

doc.recompute()
